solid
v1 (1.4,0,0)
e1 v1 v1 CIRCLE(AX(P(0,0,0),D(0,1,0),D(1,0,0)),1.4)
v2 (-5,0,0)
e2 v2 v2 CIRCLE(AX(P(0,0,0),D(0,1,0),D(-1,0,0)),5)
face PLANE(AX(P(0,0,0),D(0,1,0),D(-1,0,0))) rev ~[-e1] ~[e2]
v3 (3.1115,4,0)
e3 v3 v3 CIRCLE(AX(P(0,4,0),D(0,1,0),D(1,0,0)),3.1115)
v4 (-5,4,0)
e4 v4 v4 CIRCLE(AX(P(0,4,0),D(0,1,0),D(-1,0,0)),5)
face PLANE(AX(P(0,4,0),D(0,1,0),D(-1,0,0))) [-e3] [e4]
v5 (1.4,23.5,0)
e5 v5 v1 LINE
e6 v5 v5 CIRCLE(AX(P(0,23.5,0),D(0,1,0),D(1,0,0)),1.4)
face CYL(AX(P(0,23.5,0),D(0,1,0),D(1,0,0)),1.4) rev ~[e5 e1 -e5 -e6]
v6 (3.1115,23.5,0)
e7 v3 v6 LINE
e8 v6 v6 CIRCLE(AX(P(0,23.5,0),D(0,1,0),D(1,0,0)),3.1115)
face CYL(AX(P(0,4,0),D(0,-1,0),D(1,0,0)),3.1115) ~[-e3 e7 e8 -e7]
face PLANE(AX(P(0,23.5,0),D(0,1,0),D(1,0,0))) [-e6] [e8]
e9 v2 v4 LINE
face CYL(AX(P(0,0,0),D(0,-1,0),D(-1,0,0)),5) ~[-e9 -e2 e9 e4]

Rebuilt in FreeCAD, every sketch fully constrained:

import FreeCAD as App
import Part
import Sketcher
Q = App.Units.Quantity

doc = App.newDocument("Part")
body = doc.addObject("PartDesign::Body", "Body")

sketch1 = body.newObject("Sketcher::SketchObject", "Sketch")
sketch1.AttachmentSupport = (doc.getObject("XZ_Plane"), [""])
sketch1.MapMode = "FlatFace"
sketch1.addGeometry(Part.Circle(App.Vector(0, 0, 0), App.Vector(0, 0, 1), 5), False)
sketch1.addConstraint([
    Sketcher.Constraint("Coincident", 0, 3, -1, 1),
    Sketcher.Constraint("Diameter", 0, Q("10 mm")),
])
pad1 = body.newObject("PartDesign::Pad", "Pad")
pad1.Profile = sketch1
pad1.Length = 4
pad1.Reversed = True

sketch2 = body.newObject("Sketcher::SketchObject", "Sketch001")
sketch2.AttachmentSupport = (doc.getObject("XZ_Plane"), [""])
sketch2.MapMode = "FlatFace"
sketch2.AttachmentOffset = App.Placement(App.Vector(0, 0, -4), App.Rotation())
sketch2.addGeometry(Part.Circle(App.Vector(0, 0, 0), App.Vector(0, 0, 1), 3.1115), False)
sketch2.addConstraint([
    Sketcher.Constraint("Coincident", 0, 3, -1, 1),
    Sketcher.Constraint("Diameter", 0, Q("6.223 mm")),
])
pad2 = body.newObject("PartDesign::Pad", "Pad001")
pad2.Profile = sketch2
pad2.Length = 19.5
pad2.Reversed = True

sketch3 = body.newObject("Sketcher::SketchObject", "Sketch002")
sketch3.AttachmentSupport = (doc.getObject("XZ_Plane"), [""])
sketch3.MapMode = "FlatFace"
sketch3.AttachmentOffset = App.Placement(App.Vector(0, 0, -23.5), App.Rotation())
sketch3.addGeometry(Part.Circle(App.Vector(0, 0, 0), App.Vector(0, 0, 1), 1.4), False)
sketch3.addConstraint([
    Sketcher.Constraint("Coincident", 0, 3, -1, 1),
    Sketcher.Constraint("Diameter", 0, Q("2.8 mm")),
])
pocket1 = body.newObject("PartDesign::Pocket", "Pocket")
pocket1.Profile = sketch3
pocket1.Type = "ThroughAll"
pocket1.Reversed = True

doc.recompute()
